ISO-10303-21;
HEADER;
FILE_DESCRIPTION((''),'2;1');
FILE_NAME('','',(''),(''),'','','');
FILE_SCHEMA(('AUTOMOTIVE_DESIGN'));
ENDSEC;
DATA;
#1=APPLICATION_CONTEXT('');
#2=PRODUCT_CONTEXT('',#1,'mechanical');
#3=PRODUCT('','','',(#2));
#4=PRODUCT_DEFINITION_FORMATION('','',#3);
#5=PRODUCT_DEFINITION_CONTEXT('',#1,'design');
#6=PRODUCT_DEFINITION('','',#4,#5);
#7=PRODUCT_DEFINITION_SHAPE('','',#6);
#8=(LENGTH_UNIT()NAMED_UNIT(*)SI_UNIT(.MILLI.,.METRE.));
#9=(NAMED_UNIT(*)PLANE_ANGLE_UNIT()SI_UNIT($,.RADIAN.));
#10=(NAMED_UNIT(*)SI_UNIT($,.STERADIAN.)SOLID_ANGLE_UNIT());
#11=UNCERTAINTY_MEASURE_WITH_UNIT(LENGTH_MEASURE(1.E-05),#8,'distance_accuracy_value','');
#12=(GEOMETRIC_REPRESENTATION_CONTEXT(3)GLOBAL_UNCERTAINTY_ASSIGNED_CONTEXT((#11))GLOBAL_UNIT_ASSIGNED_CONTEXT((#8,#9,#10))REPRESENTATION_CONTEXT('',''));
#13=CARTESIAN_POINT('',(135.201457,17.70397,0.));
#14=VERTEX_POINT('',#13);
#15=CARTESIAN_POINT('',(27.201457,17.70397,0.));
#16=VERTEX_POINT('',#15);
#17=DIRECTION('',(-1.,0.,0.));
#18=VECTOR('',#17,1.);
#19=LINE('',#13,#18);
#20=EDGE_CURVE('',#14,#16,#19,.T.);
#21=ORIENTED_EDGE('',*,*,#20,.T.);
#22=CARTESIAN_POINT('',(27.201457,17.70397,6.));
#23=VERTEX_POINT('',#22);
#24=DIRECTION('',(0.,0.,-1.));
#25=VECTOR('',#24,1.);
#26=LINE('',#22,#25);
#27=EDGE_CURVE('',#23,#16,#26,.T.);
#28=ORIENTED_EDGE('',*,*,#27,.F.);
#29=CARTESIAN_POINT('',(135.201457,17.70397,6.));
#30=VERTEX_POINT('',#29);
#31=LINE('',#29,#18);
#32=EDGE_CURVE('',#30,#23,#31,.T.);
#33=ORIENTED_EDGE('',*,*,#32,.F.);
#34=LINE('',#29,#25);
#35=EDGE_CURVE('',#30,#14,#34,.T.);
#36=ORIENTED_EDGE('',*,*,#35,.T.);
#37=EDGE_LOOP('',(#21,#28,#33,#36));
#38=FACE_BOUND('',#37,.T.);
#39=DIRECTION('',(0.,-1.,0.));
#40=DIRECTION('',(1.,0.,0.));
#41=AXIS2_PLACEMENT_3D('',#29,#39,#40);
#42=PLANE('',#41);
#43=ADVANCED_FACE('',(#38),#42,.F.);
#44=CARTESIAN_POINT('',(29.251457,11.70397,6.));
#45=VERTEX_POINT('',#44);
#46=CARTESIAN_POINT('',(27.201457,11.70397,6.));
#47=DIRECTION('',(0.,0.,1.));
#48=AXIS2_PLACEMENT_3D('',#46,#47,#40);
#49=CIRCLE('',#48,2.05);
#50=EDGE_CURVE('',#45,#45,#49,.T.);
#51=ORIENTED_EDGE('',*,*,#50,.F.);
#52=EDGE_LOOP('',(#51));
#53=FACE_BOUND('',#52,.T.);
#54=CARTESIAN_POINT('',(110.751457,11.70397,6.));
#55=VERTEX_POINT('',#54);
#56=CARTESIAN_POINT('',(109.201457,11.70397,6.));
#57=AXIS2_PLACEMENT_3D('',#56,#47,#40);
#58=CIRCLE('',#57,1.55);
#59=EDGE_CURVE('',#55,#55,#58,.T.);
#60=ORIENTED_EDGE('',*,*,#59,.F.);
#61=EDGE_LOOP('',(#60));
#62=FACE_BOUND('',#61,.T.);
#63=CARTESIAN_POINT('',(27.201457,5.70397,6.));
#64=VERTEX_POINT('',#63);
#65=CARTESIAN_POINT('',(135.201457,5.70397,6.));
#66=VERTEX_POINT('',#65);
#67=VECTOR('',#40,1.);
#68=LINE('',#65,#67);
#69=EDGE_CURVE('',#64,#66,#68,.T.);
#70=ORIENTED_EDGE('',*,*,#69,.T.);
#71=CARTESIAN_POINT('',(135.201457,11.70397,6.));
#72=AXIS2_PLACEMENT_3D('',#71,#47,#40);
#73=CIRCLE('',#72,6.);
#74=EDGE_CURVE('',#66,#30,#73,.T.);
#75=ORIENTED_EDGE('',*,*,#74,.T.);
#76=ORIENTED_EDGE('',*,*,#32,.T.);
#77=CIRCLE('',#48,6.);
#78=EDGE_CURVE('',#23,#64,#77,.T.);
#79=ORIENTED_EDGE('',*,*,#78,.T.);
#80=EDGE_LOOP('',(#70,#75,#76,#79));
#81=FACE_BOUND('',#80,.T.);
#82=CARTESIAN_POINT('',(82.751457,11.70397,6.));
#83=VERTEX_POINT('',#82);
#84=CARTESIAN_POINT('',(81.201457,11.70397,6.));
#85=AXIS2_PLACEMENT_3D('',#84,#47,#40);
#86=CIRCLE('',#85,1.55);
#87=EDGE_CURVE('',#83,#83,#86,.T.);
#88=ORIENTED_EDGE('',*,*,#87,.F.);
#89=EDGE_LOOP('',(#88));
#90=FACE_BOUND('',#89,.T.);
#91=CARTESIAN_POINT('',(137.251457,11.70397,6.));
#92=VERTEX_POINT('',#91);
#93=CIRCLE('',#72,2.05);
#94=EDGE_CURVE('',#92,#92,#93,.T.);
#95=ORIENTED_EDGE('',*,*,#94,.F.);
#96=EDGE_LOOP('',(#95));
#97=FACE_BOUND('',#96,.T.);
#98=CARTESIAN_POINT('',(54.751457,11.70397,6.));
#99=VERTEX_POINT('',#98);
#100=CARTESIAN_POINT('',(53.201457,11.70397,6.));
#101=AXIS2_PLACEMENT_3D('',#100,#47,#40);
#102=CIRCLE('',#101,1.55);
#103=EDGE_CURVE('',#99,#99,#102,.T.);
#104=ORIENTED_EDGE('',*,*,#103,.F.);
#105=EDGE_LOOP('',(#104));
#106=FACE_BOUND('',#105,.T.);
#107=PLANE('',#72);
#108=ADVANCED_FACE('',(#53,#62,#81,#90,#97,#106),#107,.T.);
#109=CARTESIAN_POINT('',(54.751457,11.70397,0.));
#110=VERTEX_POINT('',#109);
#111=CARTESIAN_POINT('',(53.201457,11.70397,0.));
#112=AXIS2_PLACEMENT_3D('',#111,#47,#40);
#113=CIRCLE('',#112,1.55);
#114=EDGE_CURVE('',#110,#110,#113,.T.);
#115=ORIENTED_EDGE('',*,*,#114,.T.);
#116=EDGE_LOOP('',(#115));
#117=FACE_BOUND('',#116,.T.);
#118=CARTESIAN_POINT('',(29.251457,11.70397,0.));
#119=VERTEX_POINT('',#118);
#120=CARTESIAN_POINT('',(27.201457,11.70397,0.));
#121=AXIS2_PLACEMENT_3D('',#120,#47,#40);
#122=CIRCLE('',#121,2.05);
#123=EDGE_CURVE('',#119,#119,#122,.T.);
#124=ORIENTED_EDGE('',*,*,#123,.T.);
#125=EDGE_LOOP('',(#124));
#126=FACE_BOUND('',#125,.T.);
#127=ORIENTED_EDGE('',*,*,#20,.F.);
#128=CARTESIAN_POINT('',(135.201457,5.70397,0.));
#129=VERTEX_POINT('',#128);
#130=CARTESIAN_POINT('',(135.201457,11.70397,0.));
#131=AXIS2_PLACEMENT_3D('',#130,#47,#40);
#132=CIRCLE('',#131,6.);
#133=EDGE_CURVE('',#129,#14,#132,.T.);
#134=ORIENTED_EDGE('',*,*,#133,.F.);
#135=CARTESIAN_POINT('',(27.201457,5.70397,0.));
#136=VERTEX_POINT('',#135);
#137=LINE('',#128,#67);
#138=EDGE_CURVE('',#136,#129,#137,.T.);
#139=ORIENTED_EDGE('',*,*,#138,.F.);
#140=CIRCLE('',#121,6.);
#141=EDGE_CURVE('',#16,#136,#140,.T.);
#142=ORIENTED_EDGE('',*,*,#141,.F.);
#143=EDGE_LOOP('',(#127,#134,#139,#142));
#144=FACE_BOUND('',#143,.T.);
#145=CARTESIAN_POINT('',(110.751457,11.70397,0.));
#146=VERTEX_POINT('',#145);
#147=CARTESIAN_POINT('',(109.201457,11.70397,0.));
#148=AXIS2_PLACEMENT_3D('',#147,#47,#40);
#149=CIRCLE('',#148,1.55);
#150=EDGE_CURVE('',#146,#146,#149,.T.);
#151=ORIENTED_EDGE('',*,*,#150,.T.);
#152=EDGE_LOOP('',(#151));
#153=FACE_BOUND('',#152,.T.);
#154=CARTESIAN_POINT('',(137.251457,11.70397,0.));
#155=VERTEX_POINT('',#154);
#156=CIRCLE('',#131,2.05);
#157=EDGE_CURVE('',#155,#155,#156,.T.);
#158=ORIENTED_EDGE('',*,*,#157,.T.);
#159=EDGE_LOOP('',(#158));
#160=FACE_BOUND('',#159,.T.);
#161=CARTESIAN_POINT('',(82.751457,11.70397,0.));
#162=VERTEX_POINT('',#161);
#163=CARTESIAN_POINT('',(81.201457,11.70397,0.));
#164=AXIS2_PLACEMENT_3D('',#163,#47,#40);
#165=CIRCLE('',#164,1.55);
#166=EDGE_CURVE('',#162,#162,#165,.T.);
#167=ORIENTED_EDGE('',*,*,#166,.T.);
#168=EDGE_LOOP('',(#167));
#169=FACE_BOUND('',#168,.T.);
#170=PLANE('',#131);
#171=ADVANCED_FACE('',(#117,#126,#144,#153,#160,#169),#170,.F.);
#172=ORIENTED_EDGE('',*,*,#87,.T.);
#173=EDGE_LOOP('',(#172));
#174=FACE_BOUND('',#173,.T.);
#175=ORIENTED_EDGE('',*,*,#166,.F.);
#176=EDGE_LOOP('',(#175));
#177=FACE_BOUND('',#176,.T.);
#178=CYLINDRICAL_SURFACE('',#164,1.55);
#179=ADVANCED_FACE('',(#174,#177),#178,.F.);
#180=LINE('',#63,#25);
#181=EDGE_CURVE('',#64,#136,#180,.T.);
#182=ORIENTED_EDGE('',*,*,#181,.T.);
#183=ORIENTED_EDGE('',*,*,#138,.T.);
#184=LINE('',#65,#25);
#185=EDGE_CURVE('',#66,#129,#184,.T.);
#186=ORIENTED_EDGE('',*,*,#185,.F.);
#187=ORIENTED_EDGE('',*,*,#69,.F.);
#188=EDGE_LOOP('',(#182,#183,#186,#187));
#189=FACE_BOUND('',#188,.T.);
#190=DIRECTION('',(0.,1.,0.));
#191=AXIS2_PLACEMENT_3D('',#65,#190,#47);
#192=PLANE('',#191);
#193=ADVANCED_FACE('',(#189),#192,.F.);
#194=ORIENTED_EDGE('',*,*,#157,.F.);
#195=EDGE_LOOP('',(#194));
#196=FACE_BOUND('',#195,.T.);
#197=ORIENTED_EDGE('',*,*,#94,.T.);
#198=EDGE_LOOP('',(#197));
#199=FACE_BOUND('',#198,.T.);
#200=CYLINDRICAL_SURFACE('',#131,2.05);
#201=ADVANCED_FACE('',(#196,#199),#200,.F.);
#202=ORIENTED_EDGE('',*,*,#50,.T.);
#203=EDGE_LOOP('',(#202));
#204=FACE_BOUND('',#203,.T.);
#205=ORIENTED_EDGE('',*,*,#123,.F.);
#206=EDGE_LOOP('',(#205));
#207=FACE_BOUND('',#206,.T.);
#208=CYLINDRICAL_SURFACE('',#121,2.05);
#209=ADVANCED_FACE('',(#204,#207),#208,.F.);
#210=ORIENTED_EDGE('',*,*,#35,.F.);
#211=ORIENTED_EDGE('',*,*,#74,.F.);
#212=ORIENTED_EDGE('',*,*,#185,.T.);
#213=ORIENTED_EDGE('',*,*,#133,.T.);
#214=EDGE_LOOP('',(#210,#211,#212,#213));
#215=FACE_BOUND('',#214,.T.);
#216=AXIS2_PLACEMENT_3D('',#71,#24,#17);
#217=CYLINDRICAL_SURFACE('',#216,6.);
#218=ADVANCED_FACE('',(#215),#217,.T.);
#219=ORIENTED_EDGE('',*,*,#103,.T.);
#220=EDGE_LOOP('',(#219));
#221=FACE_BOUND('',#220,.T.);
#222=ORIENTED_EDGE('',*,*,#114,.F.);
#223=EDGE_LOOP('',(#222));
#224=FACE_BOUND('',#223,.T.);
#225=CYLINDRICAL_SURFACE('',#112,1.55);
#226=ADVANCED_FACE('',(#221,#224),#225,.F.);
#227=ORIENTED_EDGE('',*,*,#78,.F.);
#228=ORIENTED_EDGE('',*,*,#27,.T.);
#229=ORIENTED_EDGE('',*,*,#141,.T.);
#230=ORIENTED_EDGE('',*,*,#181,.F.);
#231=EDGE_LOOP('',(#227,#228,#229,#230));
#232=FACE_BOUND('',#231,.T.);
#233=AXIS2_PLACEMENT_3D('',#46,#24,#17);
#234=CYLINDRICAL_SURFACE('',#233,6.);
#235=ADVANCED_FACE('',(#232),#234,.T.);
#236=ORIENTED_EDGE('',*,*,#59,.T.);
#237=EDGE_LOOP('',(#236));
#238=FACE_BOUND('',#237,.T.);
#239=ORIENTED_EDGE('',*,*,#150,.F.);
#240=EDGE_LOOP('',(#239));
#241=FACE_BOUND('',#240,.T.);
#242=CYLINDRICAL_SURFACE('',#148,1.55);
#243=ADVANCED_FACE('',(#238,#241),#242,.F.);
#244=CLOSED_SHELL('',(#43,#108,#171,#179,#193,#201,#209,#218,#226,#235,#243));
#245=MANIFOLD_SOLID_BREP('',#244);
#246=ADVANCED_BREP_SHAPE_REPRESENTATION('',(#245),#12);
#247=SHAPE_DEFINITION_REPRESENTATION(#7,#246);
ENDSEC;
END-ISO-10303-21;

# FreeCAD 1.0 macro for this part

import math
import FreeCAD as App
import Part
import Sketcher

doc = App.newDocument("Part")
params = doc.addObject("Spreadsheet::Sheet", "Params")
for row, (alias, value) in enumerate([
    ("sketch1_radius", "6 mm"),
    ("sketch1_width", "108 mm"),
    ("pad1_length", "6 mm"),
    ("sketch2_diameter", "4.1 mm"),
    ("pocket1_length", "6 mm"),
    ("sketch3_diameter", "3.1 mm"),
    ("pocket2_length", "6 mm"),
], start=1):
    params.set(f"A{row}", alias)
    params.set(f"B{row}", "=" + value)
    params.setAlias(f"B{row}", alias)

body = doc.addObject("PartDesign::Body", "Body")

sketch1 = doc.addObject("Sketcher::SketchObject", "Sketch")
body.addObject(sketch1)
sketch1.AttachmentSupport = (doc.XY_Plane, [""])
sketch1.MapMode = "FlatFace"
sketch1.addGeometry([
    Part.LineSegment(App.Vector(135, 18, 0), App.Vector(27, 18, 0)),
    Part.ArcOfCircle(Part.Circle(App.Vector(27, 12, 0), App.Vector(0, 0, 1), 6), math.radians(90), math.radians(270)),
    Part.LineSegment(App.Vector(27, 6, 0), App.Vector(135, 6, 0)),
    Part.ArcOfCircle(Part.Circle(App.Vector(135, 12, 0), App.Vector(0, 0, 1), 6), math.radians(-90), math.radians(90)),
], False)
sketch1.addConstraint([
    Sketcher.Constraint("Tangent", 0, 2, 1, 1),
    Sketcher.Constraint("Tangent", 1, 2, 2, 1),
    Sketcher.Constraint("Tangent", 2, 2, 3, 1),
    Sketcher.Constraint("Tangent", 3, 2, 0, 1),
    Sketcher.Constraint("Horizontal", 0),
    Sketcher.Constraint("Horizontal", 2),
    Sketcher.Constraint("Radius", 1, 6.0),
    Sketcher.Constraint("DistanceX", 0, 2, 0, 1, 108.0),
    Sketcher.Constraint("DistanceY", -1, 1, 1, 3, 11.70397),
    Sketcher.Constraint("DistanceX", -1, 1, 1, 3, 27.201457),
])
sketch1.setExpression("Constraints[6]", "Params.sketch1_radius")
sketch1.setExpression("Constraints[7]", "Params.sketch1_width")
pad1 = doc.addObject("PartDesign::Pad", "Pad")
body.addObject(pad1)
pad1.Profile = sketch1
pad1.setExpression("Length", "Params.pad1_length")

sketch2 = doc.addObject("Sketcher::SketchObject", "Sketch001")
body.addObject(sketch2)
sketch2.AttachmentSupport = (doc.XY_Plane, [""])
sketch2.MapMode = "FlatFace"
sketch2.AttachmentOffset = App.Placement(App.Vector(0, 0, 6), App.Rotation())
sketch2.addGeometry([
    Part.Circle(App.Vector(135.2, 11.7, 0), App.Vector(0, 0, 1), 2),
    Part.Circle(App.Vector(27.2, 11.7, 0), App.Vector(0, 0, 1), 2),
], False)
sketch2.addConstraint([
    Sketcher.Constraint("Equal", 0, 1),
    Sketcher.Constraint("Horizontal", 0, 3, 1, 3),
    Sketcher.Constraint("Diameter", 0, 4.1),
    Sketcher.Constraint("DistanceX", 1, 3, 0, 3, 108.0),
    Sketcher.Constraint("DistanceY", -1, 1, 0, 3, 11.70397),
    Sketcher.Constraint("DistanceX", -1, 1, 0, 3, 135.201457),
])
sketch2.setExpression("Constraints[2]", "Params.sketch2_diameter")
pocket1 = doc.addObject("PartDesign::Pocket", "Pocket")
body.addObject(pocket1)
pocket1.Profile = sketch2
pocket1.setExpression("Length", "Params.pocket1_length")

sketch3 = doc.addObject("Sketcher::SketchObject", "Sketch002")
body.addObject(sketch3)
sketch3.AttachmentSupport = (doc.XY_Plane, [""])
sketch3.MapMode = "FlatFace"
sketch3.AttachmentOffset = App.Placement(App.Vector(0, 0, 6), App.Rotation())
sketch3.addGeometry([
    Part.Circle(App.Vector(53.2, 11.7, 0), App.Vector(0, 0, 1), 1.6),
    Part.Circle(App.Vector(81.2, 11.7, 0), App.Vector(0, 0, 1), 1.6),
    Part.Circle(App.Vector(109.2, 11.7, 0), App.Vector(0, 0, 1), 1.6),
], False)
sketch3.addConstraint([
    Sketcher.Constraint("Equal", 0, 1),
    Sketcher.Constraint("Equal", 1, 2),
    Sketcher.Constraint("Horizontal", 0, 3, 1, 3),
    Sketcher.Constraint("Horizontal", 1, 3, 2, 3),
    Sketcher.Constraint("Diameter", 0, 3.1),
    Sketcher.Constraint("DistanceX", 0, 3, 1, 3, 28.0),
    Sketcher.Constraint("DistanceX", 1, 3, 2, 3, 28.0),
    Sketcher.Constraint("DistanceY", -1, 1, 0, 3, 11.70397),
    Sketcher.Constraint("DistanceX", -1, 1, 0, 3, 53.201457),
])
sketch3.setExpression("Constraints[4]", "Params.sketch3_diameter")
pocket2 = doc.addObject("PartDesign::Pocket", "Pocket001")
body.addObject(pocket2)
pocket2.Profile = sketch3
pocket2.setExpression("Length", "Params.pocket2_length")

doc.recompute()
